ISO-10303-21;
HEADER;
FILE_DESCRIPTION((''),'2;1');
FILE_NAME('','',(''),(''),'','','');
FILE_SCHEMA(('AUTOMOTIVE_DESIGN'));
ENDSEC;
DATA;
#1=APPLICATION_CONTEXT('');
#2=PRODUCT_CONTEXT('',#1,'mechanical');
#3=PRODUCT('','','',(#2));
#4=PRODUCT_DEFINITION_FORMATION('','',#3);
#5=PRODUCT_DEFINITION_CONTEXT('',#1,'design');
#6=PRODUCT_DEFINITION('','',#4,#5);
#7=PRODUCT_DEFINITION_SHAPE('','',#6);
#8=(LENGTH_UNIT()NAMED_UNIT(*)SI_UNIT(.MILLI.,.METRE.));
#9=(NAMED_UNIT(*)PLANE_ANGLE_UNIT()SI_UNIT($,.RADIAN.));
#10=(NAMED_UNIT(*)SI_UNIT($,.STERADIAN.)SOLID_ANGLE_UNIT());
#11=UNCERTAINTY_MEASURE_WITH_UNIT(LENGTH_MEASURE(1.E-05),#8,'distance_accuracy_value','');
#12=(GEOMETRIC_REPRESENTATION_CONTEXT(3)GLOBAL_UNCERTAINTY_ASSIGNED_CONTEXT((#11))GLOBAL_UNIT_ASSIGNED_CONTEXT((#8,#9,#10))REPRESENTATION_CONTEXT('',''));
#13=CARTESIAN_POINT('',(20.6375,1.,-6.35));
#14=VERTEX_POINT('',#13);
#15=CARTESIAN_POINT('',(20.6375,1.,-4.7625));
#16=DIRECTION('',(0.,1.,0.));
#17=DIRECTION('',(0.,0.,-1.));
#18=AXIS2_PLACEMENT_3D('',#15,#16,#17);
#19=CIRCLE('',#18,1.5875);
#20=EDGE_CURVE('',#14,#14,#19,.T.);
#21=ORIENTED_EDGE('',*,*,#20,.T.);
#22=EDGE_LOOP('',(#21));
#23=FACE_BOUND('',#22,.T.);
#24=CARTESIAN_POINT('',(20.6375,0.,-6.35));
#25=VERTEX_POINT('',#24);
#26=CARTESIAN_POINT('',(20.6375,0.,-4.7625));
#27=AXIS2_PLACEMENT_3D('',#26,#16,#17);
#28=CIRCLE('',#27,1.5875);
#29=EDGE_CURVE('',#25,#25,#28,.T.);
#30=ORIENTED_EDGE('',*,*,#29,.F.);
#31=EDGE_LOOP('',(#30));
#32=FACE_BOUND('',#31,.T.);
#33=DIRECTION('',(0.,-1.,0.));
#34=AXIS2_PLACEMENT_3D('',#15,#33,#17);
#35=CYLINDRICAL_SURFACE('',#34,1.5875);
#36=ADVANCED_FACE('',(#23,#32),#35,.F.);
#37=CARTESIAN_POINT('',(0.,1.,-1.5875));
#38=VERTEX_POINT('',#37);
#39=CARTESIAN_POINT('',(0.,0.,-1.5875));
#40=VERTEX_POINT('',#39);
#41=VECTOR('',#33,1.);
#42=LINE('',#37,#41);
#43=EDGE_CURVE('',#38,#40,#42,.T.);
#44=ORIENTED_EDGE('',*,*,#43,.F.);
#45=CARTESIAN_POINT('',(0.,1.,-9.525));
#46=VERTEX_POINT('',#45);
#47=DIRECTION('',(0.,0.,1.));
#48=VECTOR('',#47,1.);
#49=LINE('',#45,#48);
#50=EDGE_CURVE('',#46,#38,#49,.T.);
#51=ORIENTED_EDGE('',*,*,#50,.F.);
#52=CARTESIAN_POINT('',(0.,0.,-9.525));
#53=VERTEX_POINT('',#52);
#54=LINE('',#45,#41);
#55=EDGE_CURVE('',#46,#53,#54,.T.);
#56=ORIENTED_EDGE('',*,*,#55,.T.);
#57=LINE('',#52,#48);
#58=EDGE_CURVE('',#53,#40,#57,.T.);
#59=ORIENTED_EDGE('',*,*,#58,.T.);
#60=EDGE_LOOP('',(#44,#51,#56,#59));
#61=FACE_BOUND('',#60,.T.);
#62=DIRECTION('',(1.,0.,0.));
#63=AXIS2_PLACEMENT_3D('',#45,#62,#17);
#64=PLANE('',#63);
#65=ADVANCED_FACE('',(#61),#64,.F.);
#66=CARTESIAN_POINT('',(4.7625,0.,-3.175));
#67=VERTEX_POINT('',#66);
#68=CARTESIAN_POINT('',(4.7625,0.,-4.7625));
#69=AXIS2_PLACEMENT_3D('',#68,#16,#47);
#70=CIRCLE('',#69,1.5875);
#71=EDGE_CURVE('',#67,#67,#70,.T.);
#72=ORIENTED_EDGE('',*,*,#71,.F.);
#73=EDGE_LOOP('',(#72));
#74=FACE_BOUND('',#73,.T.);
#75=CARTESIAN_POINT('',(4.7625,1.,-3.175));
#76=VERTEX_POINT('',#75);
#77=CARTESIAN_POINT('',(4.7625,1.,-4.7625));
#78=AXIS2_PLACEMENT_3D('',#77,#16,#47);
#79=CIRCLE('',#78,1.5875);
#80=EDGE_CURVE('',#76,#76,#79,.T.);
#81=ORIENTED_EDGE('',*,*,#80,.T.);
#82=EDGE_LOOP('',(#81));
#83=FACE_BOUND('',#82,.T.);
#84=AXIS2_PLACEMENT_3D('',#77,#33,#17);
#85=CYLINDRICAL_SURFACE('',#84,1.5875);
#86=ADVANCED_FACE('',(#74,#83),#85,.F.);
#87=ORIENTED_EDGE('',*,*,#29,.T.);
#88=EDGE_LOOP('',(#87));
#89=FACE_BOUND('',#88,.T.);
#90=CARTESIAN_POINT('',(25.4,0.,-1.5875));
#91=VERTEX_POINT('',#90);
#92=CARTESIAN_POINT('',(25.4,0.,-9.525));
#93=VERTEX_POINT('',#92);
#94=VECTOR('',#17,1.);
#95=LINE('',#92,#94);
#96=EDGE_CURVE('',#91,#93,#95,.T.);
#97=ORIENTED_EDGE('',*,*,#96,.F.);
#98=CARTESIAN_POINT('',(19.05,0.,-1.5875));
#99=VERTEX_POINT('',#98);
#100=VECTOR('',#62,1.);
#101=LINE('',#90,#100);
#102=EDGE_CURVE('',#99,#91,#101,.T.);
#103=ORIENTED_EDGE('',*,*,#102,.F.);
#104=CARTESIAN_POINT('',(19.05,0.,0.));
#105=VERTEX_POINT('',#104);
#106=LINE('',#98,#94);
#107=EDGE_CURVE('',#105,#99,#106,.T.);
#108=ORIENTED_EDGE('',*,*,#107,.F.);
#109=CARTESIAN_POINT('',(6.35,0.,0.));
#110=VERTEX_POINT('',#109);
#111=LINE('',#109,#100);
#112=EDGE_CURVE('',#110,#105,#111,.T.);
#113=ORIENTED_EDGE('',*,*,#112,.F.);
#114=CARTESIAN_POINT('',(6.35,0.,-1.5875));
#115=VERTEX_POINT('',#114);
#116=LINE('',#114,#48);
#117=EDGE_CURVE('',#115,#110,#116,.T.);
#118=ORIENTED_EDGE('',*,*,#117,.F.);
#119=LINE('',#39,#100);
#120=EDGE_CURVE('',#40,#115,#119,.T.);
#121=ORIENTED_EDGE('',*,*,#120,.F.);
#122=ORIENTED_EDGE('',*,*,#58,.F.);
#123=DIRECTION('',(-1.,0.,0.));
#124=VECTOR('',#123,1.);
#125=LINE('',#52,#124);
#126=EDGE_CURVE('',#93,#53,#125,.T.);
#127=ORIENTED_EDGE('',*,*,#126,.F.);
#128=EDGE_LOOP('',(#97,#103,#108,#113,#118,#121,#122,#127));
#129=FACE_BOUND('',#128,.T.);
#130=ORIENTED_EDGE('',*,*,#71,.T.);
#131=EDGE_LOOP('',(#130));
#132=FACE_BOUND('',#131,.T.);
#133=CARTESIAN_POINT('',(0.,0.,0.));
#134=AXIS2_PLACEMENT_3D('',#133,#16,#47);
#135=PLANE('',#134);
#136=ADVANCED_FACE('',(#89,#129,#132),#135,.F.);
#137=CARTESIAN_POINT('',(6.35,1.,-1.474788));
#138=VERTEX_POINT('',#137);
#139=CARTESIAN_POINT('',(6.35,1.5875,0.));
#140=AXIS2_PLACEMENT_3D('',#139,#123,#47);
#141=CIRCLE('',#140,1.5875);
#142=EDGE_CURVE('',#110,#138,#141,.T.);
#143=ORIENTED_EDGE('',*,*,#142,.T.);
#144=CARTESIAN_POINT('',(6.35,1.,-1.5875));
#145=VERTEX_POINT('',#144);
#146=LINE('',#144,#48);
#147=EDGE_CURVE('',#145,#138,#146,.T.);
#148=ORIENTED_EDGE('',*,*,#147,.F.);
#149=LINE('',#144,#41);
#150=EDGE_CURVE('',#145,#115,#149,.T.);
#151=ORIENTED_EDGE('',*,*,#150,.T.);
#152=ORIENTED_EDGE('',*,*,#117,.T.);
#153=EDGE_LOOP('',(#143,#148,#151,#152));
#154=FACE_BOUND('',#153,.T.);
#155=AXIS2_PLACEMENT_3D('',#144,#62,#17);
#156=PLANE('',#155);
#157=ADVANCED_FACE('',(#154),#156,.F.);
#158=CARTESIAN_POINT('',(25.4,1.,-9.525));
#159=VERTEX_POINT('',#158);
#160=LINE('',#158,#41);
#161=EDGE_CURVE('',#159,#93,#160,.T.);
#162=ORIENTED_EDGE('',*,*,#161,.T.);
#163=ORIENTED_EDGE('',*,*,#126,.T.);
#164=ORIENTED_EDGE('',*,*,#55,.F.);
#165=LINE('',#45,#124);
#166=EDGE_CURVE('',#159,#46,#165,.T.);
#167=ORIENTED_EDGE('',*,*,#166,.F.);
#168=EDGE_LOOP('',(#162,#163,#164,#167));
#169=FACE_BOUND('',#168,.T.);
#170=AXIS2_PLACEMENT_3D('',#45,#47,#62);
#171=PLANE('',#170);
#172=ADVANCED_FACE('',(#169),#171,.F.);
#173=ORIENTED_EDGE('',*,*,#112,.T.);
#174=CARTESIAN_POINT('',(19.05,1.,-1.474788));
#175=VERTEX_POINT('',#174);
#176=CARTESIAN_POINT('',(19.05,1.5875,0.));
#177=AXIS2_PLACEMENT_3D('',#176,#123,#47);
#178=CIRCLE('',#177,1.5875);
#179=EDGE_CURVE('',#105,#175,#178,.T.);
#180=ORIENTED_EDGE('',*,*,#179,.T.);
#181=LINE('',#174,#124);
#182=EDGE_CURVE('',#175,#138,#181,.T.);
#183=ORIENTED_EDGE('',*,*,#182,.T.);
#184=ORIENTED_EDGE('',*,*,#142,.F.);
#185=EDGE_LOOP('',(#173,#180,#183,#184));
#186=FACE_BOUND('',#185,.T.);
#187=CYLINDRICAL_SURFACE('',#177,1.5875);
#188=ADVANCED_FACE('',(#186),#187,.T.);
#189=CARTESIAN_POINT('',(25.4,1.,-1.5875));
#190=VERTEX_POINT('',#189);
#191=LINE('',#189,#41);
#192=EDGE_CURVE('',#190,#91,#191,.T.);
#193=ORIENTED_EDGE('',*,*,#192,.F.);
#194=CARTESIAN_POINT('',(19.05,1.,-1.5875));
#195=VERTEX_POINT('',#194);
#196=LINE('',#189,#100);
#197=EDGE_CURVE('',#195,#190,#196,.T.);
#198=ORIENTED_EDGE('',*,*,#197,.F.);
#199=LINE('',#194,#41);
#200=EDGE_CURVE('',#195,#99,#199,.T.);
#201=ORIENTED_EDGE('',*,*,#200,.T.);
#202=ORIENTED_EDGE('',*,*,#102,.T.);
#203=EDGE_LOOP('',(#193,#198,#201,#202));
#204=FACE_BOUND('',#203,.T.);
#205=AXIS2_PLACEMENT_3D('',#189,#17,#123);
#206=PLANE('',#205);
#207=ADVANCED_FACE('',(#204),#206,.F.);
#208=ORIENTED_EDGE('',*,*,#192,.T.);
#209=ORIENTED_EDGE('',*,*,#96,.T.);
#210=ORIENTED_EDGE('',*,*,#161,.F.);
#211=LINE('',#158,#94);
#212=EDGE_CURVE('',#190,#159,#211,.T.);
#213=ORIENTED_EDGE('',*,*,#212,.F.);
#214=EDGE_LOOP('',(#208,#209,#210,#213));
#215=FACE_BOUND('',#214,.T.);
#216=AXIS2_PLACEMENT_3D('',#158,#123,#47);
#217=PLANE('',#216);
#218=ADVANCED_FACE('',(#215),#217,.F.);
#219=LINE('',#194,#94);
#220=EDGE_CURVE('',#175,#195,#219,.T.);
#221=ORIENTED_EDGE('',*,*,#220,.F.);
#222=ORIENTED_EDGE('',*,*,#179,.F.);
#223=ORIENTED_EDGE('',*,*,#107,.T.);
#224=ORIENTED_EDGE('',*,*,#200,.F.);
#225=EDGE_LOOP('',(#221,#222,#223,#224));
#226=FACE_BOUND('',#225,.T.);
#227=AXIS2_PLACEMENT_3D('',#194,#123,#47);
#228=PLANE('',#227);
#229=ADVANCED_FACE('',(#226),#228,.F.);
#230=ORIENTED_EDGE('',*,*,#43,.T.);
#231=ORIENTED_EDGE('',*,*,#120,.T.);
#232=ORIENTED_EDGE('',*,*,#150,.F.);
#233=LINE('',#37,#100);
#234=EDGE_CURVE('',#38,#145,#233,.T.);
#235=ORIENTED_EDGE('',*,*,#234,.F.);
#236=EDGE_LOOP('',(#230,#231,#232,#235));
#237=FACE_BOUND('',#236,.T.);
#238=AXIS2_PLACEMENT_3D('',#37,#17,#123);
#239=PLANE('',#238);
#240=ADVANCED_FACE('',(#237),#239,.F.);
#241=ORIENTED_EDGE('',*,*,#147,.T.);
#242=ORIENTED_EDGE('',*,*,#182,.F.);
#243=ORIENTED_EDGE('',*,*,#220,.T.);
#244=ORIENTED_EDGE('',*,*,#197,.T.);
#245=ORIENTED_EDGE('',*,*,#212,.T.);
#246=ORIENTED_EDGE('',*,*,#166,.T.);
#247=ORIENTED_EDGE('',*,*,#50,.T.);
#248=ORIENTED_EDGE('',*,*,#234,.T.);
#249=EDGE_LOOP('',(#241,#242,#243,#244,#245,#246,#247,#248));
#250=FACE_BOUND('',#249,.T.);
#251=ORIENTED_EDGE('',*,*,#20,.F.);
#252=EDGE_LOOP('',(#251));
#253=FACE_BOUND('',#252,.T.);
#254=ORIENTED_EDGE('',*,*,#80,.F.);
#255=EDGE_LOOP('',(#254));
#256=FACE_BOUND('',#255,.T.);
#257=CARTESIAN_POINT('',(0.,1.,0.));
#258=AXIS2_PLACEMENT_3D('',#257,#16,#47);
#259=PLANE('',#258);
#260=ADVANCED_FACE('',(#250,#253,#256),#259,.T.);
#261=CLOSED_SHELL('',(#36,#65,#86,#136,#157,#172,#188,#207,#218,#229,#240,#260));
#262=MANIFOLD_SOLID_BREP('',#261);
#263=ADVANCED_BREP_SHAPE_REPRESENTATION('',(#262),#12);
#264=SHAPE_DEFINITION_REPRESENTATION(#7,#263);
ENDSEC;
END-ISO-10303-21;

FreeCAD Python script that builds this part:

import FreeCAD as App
import Part
import Sketcher

V = App.Vector
Q = App.Units.Quantity

doc = App.newDocument("Part")
body = doc.addObject("PartDesign::Body", "Body")

# Sketch on XZ plane
sketch1 = doc.addObject("Sketcher::SketchObject", "Sketch")
body.addObject(sketch1)
sketch1.AttachmentSupport = (doc.XZ_Plane, [""])
sketch1.MapMode = "FlatFace"
sketch1.addGeometry([
    Part.LineSegment(V(25.4, -1.6, 0), V(25.4, -9.5, 0)),  # 0
    Part.LineSegment(V(25.4, -9.5, 0), V(0, -9.5, 0)),  # 1
    Part.LineSegment(V(0, -9.5, 0), V(0, -1.6, 0)),  # 2
    Part.LineSegment(V(0, -1.6, 0), V(6.3, -1.6, 0)),  # 3
    Part.LineSegment(V(6.3, -1.6, 0), V(6.3, 0, 0)),  # 4
    Part.LineSegment(V(6.3, 0, 0), V(19.1, 0, 0)),  # 5
    Part.LineSegment(V(19.1, 0, 0), V(19.1, -1.6, 0)),  # 6
    Part.LineSegment(V(19.1, -1.6, 0), V(25.4, -1.6, 0)),  # 7
    Part.Circle(V(20.6, -4.8, 0), V(0, 0, 1), 1.6),  # 8
    Part.Circle(V(4.8, -4.8, 0), V(0, 0, 1), 1.6),  # 9
], False)
sketch1.addConstraint([
    Sketcher.Constraint("Coincident", 0, 2, 1, 1),
    Sketcher.Constraint("Coincident", 1, 2, 2, 1),
    Sketcher.Constraint("Coincident", 2, 2, 3, 1),
    Sketcher.Constraint("Coincident", 3, 2, 4, 1),
    Sketcher.Constraint("Coincident", 4, 2, 5, 1),
    Sketcher.Constraint("Coincident", 5, 2, 6, 1),
    Sketcher.Constraint("Coincident", 6, 2, 7, 1),
    Sketcher.Constraint("Coincident", 7, 2, 0, 1),
    Sketcher.Constraint("Vertical", 0),
    Sketcher.Constraint("Horizontal", 1),
    Sketcher.Constraint("Vertical", 2),
    Sketcher.Constraint("Horizontal", 3),
    Sketcher.Constraint("Vertical", 4),
    Sketcher.Constraint("Horizontal", 5),
    Sketcher.Constraint("Vertical", 6),
    Sketcher.Constraint("Horizontal", 7),
    Sketcher.Constraint("Equal", 8, 9),
    Sketcher.Constraint("PointOnObject", 1, 2, -2),
    Sketcher.Constraint("PointOnObject", 4, 2, -1),
    Sketcher.Constraint("Horizontal", 8, 3, 9, 3),
    Sketcher.Constraint("Horizontal", 3, 2, 6, 2),
    Sketcher.Constraint("Equal", 3, 7),
    Sketcher.Constraint("DistanceX", 1, 2, 1, 1, Q("1 in")),
    Sketcher.Constraint("Diameter", 8, Q("0.125 in")),
    Sketcher.Constraint("DistanceX", 5, 1, 5, 2, Q("0.5 in")),
    Sketcher.Constraint("DistanceY", 0, 2, 0, 1, Q("0.3125 in")),
    Sketcher.Constraint("DistanceY", 4, 1, 4, 2, Q("0.0625 in")),
    Sketcher.Constraint("DistanceX", -1, 1, 8, 3, Q("0.8125 in")),
    Sketcher.Constraint("DistanceY", 8, 3, -1, 1, Q("0.1875 in")),
    Sketcher.Constraint("DistanceX", -1, 1, 9, 3, Q("0.1875 in")),
])
pad1 = doc.addObject("PartDesign::Pad", "Pad")
body.addObject(pad1)
pad1.Profile = sketch1
pad1.Length = 1
pad1.Reversed = True

# Sketch on YZ plane
sketch2 = doc.addObject("Sketcher::SketchObject", "Sketch001")
body.addObject(sketch2)
sketch2.AttachmentSupport = (doc.YZ_Plane, [""])
sketch2.MapMode = "FlatFace"
sketch2.AttachmentOffset = App.Placement(V(0, 0, 0.25 * 25.4), App.Rotation())
sketch2.addGeometry(Part.Circle(V(1.6, 0, 0), V(0, 0, 1), 1.6), False)
sketch2.addConstraint([
    Sketcher.Constraint("PointOnObject", 0, 3, -1),
    Sketcher.Constraint("Diameter", 0, Q("0.125 in")),
    Sketcher.Constraint("DistanceX", -1, 1, 0, 3, Q("0.0625 in")),
])
pad2 = doc.addObject("PartDesign::Pad", "Pad001")
body.addObject(pad2)
pad2.Profile = sketch2
pad2.Length = Q("0.5 in")

doc.recompute()
